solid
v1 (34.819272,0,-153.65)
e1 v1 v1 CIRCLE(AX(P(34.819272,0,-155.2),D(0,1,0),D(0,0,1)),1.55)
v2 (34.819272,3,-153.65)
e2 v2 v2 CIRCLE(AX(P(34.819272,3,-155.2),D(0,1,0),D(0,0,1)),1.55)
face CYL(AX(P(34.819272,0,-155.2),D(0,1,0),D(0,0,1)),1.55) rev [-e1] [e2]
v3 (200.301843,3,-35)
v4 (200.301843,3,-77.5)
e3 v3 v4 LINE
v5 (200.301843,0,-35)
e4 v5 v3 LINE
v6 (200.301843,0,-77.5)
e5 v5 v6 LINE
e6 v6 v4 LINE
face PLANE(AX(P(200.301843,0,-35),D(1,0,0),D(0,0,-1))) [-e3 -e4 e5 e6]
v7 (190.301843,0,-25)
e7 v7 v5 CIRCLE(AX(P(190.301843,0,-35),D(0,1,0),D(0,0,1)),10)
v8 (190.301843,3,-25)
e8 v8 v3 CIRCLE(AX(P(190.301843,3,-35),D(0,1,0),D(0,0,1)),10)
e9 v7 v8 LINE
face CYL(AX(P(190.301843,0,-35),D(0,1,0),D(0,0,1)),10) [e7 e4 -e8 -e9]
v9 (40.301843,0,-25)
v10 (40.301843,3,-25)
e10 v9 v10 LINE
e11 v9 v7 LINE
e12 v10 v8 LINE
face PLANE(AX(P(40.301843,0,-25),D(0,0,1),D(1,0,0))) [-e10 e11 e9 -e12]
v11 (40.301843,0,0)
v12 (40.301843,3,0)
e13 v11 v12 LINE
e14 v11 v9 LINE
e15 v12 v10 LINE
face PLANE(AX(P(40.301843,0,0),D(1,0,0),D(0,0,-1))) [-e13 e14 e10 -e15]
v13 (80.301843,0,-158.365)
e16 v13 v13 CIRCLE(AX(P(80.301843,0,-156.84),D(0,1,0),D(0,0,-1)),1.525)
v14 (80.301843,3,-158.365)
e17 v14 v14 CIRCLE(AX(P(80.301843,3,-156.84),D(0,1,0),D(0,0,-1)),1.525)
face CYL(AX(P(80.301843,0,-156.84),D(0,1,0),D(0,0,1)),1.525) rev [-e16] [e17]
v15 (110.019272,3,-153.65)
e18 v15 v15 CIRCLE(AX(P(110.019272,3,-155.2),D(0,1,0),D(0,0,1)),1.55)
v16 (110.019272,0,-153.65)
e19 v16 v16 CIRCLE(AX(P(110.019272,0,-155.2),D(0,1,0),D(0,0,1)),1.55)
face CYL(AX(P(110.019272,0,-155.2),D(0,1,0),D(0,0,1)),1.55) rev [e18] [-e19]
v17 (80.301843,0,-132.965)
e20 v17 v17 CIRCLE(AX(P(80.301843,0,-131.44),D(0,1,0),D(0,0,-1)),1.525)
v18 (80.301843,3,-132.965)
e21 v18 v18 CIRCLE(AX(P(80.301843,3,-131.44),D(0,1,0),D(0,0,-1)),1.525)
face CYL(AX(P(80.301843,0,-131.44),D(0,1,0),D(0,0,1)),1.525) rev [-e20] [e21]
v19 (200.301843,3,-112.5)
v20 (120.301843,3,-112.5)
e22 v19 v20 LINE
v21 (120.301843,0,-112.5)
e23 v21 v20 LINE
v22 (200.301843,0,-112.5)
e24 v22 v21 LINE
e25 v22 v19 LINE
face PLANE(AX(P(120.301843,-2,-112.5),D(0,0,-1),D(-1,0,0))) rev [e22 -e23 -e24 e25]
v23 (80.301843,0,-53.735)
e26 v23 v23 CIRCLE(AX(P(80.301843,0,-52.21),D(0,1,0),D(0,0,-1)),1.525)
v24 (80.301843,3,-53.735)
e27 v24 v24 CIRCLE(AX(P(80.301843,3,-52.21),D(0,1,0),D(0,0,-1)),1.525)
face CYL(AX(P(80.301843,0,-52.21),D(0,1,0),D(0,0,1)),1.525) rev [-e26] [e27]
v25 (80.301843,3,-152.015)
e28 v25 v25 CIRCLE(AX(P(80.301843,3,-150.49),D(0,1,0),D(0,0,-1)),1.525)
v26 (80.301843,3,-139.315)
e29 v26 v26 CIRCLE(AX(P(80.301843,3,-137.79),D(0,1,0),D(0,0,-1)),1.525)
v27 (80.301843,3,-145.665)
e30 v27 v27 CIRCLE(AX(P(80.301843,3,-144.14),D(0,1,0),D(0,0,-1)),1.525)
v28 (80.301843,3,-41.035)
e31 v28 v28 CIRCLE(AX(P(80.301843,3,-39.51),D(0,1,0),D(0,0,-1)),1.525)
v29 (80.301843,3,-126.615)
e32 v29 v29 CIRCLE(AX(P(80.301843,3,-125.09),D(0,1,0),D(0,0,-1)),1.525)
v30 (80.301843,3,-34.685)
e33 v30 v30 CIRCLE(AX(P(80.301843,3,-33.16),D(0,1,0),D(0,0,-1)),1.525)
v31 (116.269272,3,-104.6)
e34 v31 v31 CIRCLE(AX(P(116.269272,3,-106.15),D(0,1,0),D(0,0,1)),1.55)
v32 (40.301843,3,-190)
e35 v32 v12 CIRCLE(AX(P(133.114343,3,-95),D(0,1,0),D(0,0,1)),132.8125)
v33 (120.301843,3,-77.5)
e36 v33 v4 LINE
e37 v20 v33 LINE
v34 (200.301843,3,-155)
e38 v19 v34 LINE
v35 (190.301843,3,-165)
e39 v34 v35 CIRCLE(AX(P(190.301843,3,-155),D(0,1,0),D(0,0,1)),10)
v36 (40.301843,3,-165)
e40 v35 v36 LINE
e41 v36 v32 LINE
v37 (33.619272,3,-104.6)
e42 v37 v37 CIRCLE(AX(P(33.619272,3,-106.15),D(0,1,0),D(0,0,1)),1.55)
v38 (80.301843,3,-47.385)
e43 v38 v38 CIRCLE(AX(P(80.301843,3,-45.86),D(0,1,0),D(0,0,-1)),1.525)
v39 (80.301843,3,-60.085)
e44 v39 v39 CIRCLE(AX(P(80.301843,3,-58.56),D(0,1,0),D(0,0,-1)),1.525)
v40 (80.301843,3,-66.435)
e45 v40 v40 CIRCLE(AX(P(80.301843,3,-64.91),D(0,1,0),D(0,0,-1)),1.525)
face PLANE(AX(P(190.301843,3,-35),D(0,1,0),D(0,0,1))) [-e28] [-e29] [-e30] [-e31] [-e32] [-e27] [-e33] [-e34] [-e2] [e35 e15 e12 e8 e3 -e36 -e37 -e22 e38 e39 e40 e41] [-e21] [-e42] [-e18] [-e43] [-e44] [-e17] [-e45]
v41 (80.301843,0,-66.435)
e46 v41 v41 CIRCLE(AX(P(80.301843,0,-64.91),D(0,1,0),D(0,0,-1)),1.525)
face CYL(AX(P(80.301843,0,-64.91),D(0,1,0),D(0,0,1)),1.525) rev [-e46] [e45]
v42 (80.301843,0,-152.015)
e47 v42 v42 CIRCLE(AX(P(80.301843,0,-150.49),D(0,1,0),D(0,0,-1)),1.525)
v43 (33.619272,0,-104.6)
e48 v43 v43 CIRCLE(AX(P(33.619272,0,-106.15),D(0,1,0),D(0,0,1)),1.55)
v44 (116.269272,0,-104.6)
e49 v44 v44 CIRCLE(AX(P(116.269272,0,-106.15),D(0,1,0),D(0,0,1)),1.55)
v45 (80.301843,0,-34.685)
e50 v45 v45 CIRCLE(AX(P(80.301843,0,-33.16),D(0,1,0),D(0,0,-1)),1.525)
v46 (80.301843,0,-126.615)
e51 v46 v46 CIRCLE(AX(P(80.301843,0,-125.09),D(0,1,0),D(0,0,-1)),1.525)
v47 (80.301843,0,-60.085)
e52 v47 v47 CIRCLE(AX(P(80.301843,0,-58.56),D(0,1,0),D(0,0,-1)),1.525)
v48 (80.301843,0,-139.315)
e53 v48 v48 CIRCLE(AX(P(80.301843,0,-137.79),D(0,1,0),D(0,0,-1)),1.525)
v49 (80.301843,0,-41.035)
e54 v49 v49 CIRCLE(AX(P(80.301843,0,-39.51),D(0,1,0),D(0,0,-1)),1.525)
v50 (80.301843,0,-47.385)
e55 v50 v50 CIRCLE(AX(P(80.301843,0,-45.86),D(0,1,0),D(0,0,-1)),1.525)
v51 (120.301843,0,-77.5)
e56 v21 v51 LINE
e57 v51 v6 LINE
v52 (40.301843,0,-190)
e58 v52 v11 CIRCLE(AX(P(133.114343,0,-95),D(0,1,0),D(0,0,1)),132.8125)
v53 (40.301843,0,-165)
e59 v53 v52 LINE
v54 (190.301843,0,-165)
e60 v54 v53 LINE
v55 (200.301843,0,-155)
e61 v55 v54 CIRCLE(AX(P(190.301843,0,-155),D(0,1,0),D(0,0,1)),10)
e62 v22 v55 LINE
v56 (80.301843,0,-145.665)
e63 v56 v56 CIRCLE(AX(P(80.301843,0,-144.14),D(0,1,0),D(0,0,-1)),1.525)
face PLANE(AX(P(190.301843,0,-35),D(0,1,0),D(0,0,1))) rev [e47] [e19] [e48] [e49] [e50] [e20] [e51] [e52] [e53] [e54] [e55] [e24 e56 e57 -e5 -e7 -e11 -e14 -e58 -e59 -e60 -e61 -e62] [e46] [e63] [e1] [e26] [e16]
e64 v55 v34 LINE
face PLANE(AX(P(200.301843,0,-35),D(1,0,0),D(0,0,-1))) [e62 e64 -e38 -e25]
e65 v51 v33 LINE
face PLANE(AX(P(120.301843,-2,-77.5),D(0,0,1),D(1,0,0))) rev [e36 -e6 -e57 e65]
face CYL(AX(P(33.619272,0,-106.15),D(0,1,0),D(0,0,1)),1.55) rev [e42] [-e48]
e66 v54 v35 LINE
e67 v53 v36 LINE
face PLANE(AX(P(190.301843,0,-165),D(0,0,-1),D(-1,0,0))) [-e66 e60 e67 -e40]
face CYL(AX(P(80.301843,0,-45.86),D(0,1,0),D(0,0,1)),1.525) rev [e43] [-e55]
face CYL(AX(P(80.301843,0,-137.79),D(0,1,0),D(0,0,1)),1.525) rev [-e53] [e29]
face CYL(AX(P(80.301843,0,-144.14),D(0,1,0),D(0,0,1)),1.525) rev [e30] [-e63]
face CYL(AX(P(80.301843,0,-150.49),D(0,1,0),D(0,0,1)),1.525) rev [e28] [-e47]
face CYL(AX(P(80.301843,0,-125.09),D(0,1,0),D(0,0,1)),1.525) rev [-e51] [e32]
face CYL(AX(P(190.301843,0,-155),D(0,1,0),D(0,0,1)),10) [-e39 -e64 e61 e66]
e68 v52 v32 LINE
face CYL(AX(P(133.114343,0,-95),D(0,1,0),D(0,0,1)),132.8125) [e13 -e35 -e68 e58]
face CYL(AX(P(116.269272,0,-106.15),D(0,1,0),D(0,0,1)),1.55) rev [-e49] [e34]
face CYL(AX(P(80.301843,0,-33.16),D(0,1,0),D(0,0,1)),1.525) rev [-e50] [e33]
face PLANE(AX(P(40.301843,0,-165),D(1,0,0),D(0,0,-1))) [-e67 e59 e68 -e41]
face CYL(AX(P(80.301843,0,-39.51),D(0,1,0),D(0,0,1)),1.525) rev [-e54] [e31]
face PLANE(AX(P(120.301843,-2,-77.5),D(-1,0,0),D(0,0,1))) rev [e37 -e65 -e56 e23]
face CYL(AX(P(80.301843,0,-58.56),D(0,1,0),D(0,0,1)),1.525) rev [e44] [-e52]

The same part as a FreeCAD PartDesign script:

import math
import FreeCAD as App
import Part
import Sketcher
from FreeCAD import Vector
Q = App.Units.Quantity


def add_polygon(sketch, points):
    """Adds a closed chain of lines whose ends are joined by coincident constraints."""
    first, n = sketch.GeometryCount, len(points)
    for a, b in zip(points, points[1:] + points[:1]):
        sketch.addGeometry(Part.LineSegment(App.Vector(*a, 0), App.Vector(*b, 0)), False)
    for i in range(n):
        sketch.addConstraint(Sketcher.Constraint("Coincident", first + i, 2, first + (i + 1) % n, 1))

doc = App.newDocument("Part")
body = doc.addObject("PartDesign::Body", "Body")

sketch1 = body.newObject("Sketcher::SketchObject", "Sketch")
sketch1.AttachmentSupport = (doc.getObject("XZ_Plane"), [""])
sketch1.MapMode = "FlatFace"
sketch1.AttachmentOffset = App.Placement(Vector(0, 0, -3), App.Rotation())
sketch1.addGeometry([
    Part.LineSegment(Vector(200.3, -35, 0), Vector(200.3, -155, 0)),
    Part.ArcOfCircle(Part.Circle(Vector(190.3, -155, 0), Vector(0, 0, 1), 10), math.radians(-90), math.radians(0)),
    Part.LineSegment(Vector(190.3, -165, 0), Vector(40.3, -165, 0)),
    Part.LineSegment(Vector(40.3, -165, 0), Vector(40.3, -190, 0)),
    Part.ArcOfCircle(Part.Circle(Vector(133.1, -95, 0), Vector(0, 0, 1), 132.8), math.radians(134), math.radians(226)),
    Part.LineSegment(Vector(40.3, 0, 0), Vector(40.3, -25, 0)),
    Part.LineSegment(Vector(40.3, -25, 0), Vector(190.3, -25, 0)),
    Part.ArcOfCircle(Part.Circle(Vector(190.3, -35, 0), Vector(0, 0, 1), 10), math.radians(0), math.radians(90)),
    Part.Circle(Vector(80.3, -33.2, 0), Vector(0, 0, 1), 1.5),
    Part.Circle(Vector(80.3, -39.5, 0), Vector(0, 0, 1), 1.5),
    Part.Circle(Vector(80.3, -45.9, 0), Vector(0, 0, 1), 1.5),
    Part.Circle(Vector(80.3, -52.2, 0), Vector(0, 0, 1), 1.5),
    Part.Circle(Vector(80.3, -58.6, 0), Vector(0, 0, 1), 1.5),
    Part.Circle(Vector(80.3, -64.9, 0), Vector(0, 0, 1), 1.5),
    Part.Circle(Vector(80.3, -125.1, 0), Vector(0, 0, 1), 1.5),
    Part.Circle(Vector(80.3, -131.4, 0), Vector(0, 0, 1), 1.5),
    Part.Circle(Vector(80.3, -137.8, 0), Vector(0, 0, 1), 1.5),
    Part.Circle(Vector(80.3, -144.1, 0), Vector(0, 0, 1), 1.5),
    Part.Circle(Vector(80.3, -150.5, 0), Vector(0, 0, 1), 1.5),
    Part.Circle(Vector(80.3, -156.8, 0), Vector(0, 0, 1), 1.5),
], False)
sketch1.addConstraint([
    Sketcher.Constraint("Tangent", 0, 2, 1, 2),
    Sketcher.Constraint("Tangent", 1, 1, 2, 1),
    Sketcher.Constraint("Coincident", 2, 2, 3, 1),
    Sketcher.Constraint("Coincident", 3, 2, 4, 2),
    Sketcher.Constraint("Coincident", 4, 1, 5, 1),
    Sketcher.Constraint("Coincident", 5, 2, 6, 1),
    Sketcher.Constraint("Tangent", 6, 2, 7, 2),
    Sketcher.Constraint("Tangent", 7, 1, 0, 1),
    Sketcher.Constraint("Vertical", 0),
    Sketcher.Constraint("Horizontal", 2),
    Sketcher.Constraint("Vertical", 3),
    Sketcher.Constraint("Vertical", 5),
    Sketcher.Constraint("Horizontal", 6),
    Sketcher.Constraint("Equal", 1, 7),
    Sketcher.Constraint("Equal", 8, 9),
    Sketcher.Constraint("Equal", 9, 10),
    Sketcher.Constraint("Equal", 10, 11),
    Sketcher.Constraint("Equal", 11, 12),
    Sketcher.Constraint("Equal", 12, 13),
    Sketcher.Constraint("Equal", 13, 14),
    Sketcher.Constraint("Equal", 14, 15),
    Sketcher.Constraint("Equal", 15, 16),
    Sketcher.Constraint("Equal", 16, 17),
    Sketcher.Constraint("Equal", 17, 18),
    Sketcher.Constraint("Equal", 18, 19),
    Sketcher.Constraint("PointOnObject", 4, 1, -1),
    Sketcher.Constraint("Vertical", 8, 3, 9, 3),
    Sketcher.Constraint("Vertical", 9, 3, 10, 3),
    Sketcher.Constraint("Vertical", 10, 3, 11, 3),
    Sketcher.Constraint("Vertical", 11, 3, 12, 3),
    Sketcher.Constraint("Vertical", 12, 3, 13, 3),
    Sketcher.Constraint("Vertical", 13, 3, 14, 3),
    Sketcher.Constraint("Vertical", 14, 3, 15, 3),
    Sketcher.Constraint("Vertical", 15, 3, 16, 3),
    Sketcher.Constraint("Vertical", 16, 3, 17, 3),
    Sketcher.Constraint("Vertical", 17, 3, 18, 3),
    Sketcher.Constraint("Vertical", 18, 3, 19, 3),
    Sketcher.Constraint("Vertical", 3, 2, 4, 1),
    Sketcher.Constraint("Equal", 3, 5),
    Sketcher.Constraint("Radius", 1, Q("10 mm")),
    Sketcher.Constraint("Diameter", 8, Q("3.05 mm")),
    Sketcher.Constraint("DistanceX", 2, 2, 2, 1, Q("150 mm")),
    Sketcher.Constraint("DistanceY", 0, 2, 0, 1, Q("120 mm")),
    Sketcher.Constraint("DistanceY", 3, 2, 3, 1, Q("25 mm")),
    Sketcher.Constraint("DistanceX", 8, 3, 7, 3, Q("110 mm")),
    Sketcher.Constraint("Radius", 4, Q("132.8125 mm")),
    Sketcher.Constraint("DistanceY", 10, 3, 8, 3, Q("12.7 mm")),
    Sketcher.Constraint("DistanceY", 11, 3, 9, 3, Q("12.7 mm")),
    Sketcher.Constraint("DistanceY", 12, 3, 10, 3, Q("12.7 mm")),
    Sketcher.Constraint("DistanceY", 13, 3, 11, 3, Q("12.7 mm")),
    Sketcher.Constraint("DistanceY", 16, 3, 14, 3, Q("12.7 mm")),
    Sketcher.Constraint("DistanceY", 17, 3, 15, 3, Q("12.7 mm")),
    Sketcher.Constraint("DistanceY", 18, 3, 16, 3, Q("12.7 mm")),
    Sketcher.Constraint("DistanceY", 19, 3, 17, 3, Q("12.7 mm")),
    Sketcher.Constraint("DistanceY", 8, 3, -1, 1, Q("33.16 mm")),
    Sketcher.Constraint("DistanceY", 9, 3, -1, 1, Q("39.51 mm")),
    Sketcher.Constraint("DistanceY", 14, 3, -1, 1, Q("125.09 mm")),
    Sketcher.Constraint("DistanceY", 15, 3, -1, 1, Q("131.44 mm")),
    Sketcher.Constraint("DistanceX", -1, 1, 1, 3, Q("190.301843 mm")),
])
pad1 = body.newObject("PartDesign::Pad", "Pad")
pad1.Profile = sketch1
pad1.Length = 3

sketch2 = body.newObject("Sketcher::SketchObject", "Sketch001")
sketch2.AttachmentSupport = (doc.getObject("XZ_Plane"), [""])
sketch2.MapMode = "FlatFace"
sketch2.AttachmentOffset = App.Placement(Vector(0, 0, -3), App.Rotation())
add_polygon(sketch2, [(120, -112), (120, -78), (200, -78), (200, -112)])
sketch2.addConstraint([
    Sketcher.Constraint("Vertical", 0),
    Sketcher.Constraint("Horizontal", 1),
    Sketcher.Constraint("Vertical", 2),
    Sketcher.Constraint("Horizontal", 3),
    Sketcher.Constraint("DistanceX", 1, 1, 1, 2, Q("80 mm")),
    Sketcher.Constraint("DistanceY", 0, 1, 0, 2, Q("35 mm")),
    Sketcher.Constraint("DistanceY", 0, 2, -1, 1, Q("77.5 mm")),
    Sketcher.Constraint("DistanceX", -1, 1, 0, 2, Q("120.301843 mm")),
])
pocket1 = body.newObject("PartDesign::Pocket", "Pocket")
pocket1.Profile = sketch2
pocket1.Length = 5
pocket1.Reversed = True

sketch3 = body.newObject("Sketcher::SketchObject", "Sketch002")
sketch3.AttachmentSupport = (doc.getObject("XZ_Plane"), [""])
sketch3.MapMode = "FlatFace"
sketch3.AttachmentOffset = App.Placement(Vector(0, 0, -3), App.Rotation())
sketch3.addGeometry([
    Part.Circle(Vector(34.8, -155.2, 0), Vector(0, 0, 1), 1.6),
    Part.Circle(Vector(33.6, -106.2, 0), Vector(0, 0, 1), 1.6),
    Part.Circle(Vector(110, -155.2, 0), Vector(0, 0, 1), 1.6),
    Part.Circle(Vector(116.3, -106.2, 0), Vector(0, 0, 1), 1.6),
], False)
sketch3.addConstraint([
    Sketcher.Constraint("Equal", 0, 1),
    Sketcher.Constraint("Equal", 1, 2),
    Sketcher.Constraint("Equal", 2, 3),
    Sketcher.Constraint("Horizontal", 0, 3, 2, 3),
    Sketcher.Constraint("Horizontal", 1, 3, 3, 3),
    Sketcher.Constraint("Diameter", 0, Q("3.1 mm")),
    Sketcher.Constraint("DistanceY", 0, 3, -1, 1, Q("155.2 mm")),
    Sketcher.Constraint("DistanceX", 1, 3, 0, 3, Q("1.2 mm")),
    Sketcher.Constraint("DistanceX", 0, 3, 2, 3, Q("75.2 mm")),
    Sketcher.Constraint("DistanceY", 1, 3, -1, 1, Q("106.15 mm")),
    Sketcher.Constraint("DistanceX", 2, 3, 3, 3, Q("6.25 mm")),
    Sketcher.Constraint("DistanceX", -1, 1, 0, 3, Q("34.819272 mm")),
])
pocket2 = body.newObject("PartDesign::Pocket", "Pocket001")
pocket2.Profile = sketch3
pocket2.Type = "ThroughAll"
pocket2.Reversed = True

doc.recompute()
